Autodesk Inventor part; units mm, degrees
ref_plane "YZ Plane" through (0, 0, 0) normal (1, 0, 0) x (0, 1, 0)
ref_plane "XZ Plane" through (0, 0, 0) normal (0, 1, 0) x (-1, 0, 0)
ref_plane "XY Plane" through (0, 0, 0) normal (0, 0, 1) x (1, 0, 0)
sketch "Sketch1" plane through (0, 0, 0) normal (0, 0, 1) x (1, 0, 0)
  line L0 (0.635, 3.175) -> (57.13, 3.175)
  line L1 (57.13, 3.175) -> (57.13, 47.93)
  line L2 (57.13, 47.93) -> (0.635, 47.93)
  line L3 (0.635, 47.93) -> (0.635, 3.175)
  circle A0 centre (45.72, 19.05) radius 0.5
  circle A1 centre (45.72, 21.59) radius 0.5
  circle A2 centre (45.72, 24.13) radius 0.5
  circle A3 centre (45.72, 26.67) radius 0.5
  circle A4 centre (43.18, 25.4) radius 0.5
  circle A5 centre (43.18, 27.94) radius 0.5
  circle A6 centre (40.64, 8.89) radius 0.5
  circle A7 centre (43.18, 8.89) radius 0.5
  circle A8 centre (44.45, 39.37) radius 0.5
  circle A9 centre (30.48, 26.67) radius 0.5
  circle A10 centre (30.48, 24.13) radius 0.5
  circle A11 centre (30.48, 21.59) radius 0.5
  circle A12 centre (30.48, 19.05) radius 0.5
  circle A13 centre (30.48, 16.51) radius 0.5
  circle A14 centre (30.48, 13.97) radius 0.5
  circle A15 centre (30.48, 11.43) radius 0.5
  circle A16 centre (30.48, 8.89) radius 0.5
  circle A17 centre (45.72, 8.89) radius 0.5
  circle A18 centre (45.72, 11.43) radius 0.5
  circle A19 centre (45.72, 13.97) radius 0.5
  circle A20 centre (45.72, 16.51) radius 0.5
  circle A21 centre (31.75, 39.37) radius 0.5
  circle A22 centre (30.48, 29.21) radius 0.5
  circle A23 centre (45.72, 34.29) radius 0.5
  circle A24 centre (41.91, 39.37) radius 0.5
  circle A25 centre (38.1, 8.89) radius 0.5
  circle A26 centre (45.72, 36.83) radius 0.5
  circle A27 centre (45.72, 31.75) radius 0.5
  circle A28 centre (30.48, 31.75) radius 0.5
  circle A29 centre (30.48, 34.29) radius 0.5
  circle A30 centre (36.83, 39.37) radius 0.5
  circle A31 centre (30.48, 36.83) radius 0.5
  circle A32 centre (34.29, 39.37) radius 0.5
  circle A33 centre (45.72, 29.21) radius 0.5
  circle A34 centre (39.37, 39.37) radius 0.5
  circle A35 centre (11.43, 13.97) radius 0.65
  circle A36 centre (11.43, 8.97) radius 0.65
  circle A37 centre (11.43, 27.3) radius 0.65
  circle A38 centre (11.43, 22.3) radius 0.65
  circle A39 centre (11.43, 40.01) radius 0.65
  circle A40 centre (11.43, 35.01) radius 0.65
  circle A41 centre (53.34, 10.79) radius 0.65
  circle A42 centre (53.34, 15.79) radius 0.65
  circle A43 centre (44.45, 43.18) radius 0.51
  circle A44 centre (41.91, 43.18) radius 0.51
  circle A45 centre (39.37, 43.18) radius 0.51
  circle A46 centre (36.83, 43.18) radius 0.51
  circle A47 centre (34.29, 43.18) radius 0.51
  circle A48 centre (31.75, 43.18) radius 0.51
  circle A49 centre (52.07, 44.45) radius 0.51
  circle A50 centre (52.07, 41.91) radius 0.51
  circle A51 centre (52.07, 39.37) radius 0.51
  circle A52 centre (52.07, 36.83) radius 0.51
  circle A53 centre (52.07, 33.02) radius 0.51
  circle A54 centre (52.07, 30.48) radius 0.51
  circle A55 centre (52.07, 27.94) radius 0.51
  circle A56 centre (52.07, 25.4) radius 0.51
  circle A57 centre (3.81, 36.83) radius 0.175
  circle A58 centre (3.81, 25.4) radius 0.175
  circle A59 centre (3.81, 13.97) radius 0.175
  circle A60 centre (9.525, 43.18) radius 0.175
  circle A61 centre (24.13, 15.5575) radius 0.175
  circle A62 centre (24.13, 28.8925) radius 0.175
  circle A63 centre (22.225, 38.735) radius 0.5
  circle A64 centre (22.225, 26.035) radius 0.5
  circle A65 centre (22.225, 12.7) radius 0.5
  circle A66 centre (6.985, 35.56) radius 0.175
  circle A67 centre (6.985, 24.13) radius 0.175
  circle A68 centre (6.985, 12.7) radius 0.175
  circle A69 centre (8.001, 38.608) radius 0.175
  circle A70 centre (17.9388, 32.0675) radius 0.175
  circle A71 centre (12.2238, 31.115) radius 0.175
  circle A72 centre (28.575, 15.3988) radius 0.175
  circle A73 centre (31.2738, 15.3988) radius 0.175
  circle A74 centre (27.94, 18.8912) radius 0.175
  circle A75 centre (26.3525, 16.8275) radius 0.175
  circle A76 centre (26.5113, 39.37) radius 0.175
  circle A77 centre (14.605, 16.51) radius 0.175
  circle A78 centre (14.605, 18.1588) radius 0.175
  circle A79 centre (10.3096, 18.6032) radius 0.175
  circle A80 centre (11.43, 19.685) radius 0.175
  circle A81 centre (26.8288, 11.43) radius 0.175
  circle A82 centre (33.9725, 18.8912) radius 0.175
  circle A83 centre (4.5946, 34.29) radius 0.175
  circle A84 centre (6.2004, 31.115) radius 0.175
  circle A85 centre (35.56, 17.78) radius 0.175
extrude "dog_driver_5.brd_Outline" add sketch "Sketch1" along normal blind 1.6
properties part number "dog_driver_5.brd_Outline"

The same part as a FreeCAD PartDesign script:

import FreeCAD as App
import Part
import Sketcher

doc = App.newDocument("Part")
body = doc.addObject("PartDesign::Body", "Body")

sketch1 = body.newObject("Sketcher::SketchObject", "Sketch")
sketch1.AttachmentSupport = (doc.getObject("XY_Plane"), [""])
sketch1.MapMode = "FlatFace"
sketch1.addGeometry(Part.LineSegment(App.Vector(0.635, 47.93, 0), App.Vector(0.635, 3.175, 0)), False)
sketch1.addGeometry(Part.LineSegment(App.Vector(0.635, 3.175, 0), App.Vector(57.13, 3.175, 0)), False)
sketch1.addGeometry(Part.LineSegment(App.Vector(57.13, 3.175, 0), App.Vector(57.13, 47.93, 0)), False)
sketch1.addGeometry(Part.LineSegment(App.Vector(57.13, 47.93, 0), App.Vector(0.635, 47.93, 0)), False)
sketch1.addGeometry(Part.Circle(App.Vector(3.81, 13.97, 0), App.Vector(0, 0, 1), 0.175), False)
sketch1.addGeometry(Part.Circle(App.Vector(6.985, 12.7, 0), App.Vector(0, 0, 1), 0.175), False)
sketch1.addGeometry(Part.Circle(App.Vector(11.43, 8.97, 0), App.Vector(0, 0, 1), 0.65), False)
sketch1.addGeometry(Part.Circle(App.Vector(11.43, 13.97, 0), App.Vector(0, 0, 1), 0.65), False)
sketch1.addGeometry(Part.Circle(App.Vector(26.8288, 11.43, 0), App.Vector(0, 0, 1), 0.175), False)
sketch1.addGeometry(Part.Circle(App.Vector(22.225, 12.7, 0), App.Vector(0, 0, 1), 0.5), False)
sketch1.addGeometry(Part.Circle(App.Vector(14.605, 16.51, 0), App.Vector(0, 0, 1), 0.175), False)
sketch1.addGeometry(Part.Circle(App.Vector(10.3096, 18.6032, 0), App.Vector(0, 0, 1), 0.175), False)
sketch1.addGeometry(Part.Circle(App.Vector(14.605, 18.1588, 0), App.Vector(0, 0, 1), 0.175), False)
sketch1.addGeometry(Part.Circle(App.Vector(11.43, 19.685, 0), App.Vector(0, 0, 1), 0.175), False)
sketch1.addGeometry(Part.Circle(App.Vector(3.81, 25.4, 0), App.Vector(0, 0, 1), 0.175), False)
sketch1.addGeometry(Part.Circle(App.Vector(6.985, 24.13, 0), App.Vector(0, 0, 1), 0.175), False)
sketch1.addGeometry(Part.Circle(App.Vector(11.43, 22.3, 0), App.Vector(0, 0, 1), 0.65), False)
sketch1.addGeometry(Part.Circle(App.Vector(24.13, 15.5575, 0), App.Vector(0, 0, 1), 0.175), False)
sketch1.addGeometry(Part.Circle(App.Vector(28.575, 15.3988, 0), App.Vector(0, 0, 1), 0.175), False)
sketch1.addGeometry(Part.Circle(App.Vector(26.3525, 16.8275, 0), App.Vector(0, 0, 1), 0.175), False)
sketch1.addGeometry(Part.Circle(App.Vector(27.94, 18.8912, 0), App.Vector(0, 0, 1), 0.175), False)
sketch1.addGeometry(Part.Circle(App.Vector(30.48, 8.89, 0), App.Vector(0, 0, 1), 0.5), False)
sketch1.addGeometry(Part.Circle(App.Vector(30.48, 11.43, 0), App.Vector(0, 0, 1), 0.5), False)
sketch1.addGeometry(Part.Circle(App.Vector(30.48, 13.97, 0), App.Vector(0, 0, 1), 0.5), False)
sketch1.addGeometry(Part.Circle(App.Vector(38.1, 8.89, 0), App.Vector(0, 0, 1), 0.5), False)
sketch1.addGeometry(Part.Circle(App.Vector(40.64, 8.89, 0), App.Vector(0, 0, 1), 0.5), False)
sketch1.addGeometry(Part.Circle(App.Vector(43.18, 8.89, 0), App.Vector(0, 0, 1), 0.5), False)
sketch1.addGeometry(Part.Circle(App.Vector(45.72, 8.89, 0), App.Vector(0, 0, 1), 0.5), False)
sketch1.addGeometry(Part.Circle(App.Vector(45.72, 11.43, 0), App.Vector(0, 0, 1), 0.5), False)
sketch1.addGeometry(Part.Circle(App.Vector(45.72, 13.97, 0), App.Vector(0, 0, 1), 0.5), False)
sketch1.addGeometry(Part.Circle(App.Vector(53.34, 10.79, 0), App.Vector(0, 0, 1), 0.65), False)
sketch1.addGeometry(Part.Circle(App.Vector(31.2738, 15.3988, 0), App.Vector(0, 0, 1), 0.175), False)
sketch1.addGeometry(Part.Circle(App.Vector(30.48, 16.51, 0), App.Vector(0, 0, 1), 0.5), False)
sketch1.addGeometry(Part.Circle(App.Vector(30.48, 19.05, 0), App.Vector(0, 0, 1), 0.5), False)
sketch1.addGeometry(Part.Circle(App.Vector(35.56, 17.78, 0), App.Vector(0, 0, 1), 0.175), False)
sketch1.addGeometry(Part.Circle(App.Vector(33.9725, 18.8912, 0), App.Vector(0, 0, 1), 0.175), False)
sketch1.addGeometry(Part.Circle(App.Vector(30.48, 21.59, 0), App.Vector(0, 0, 1), 0.5), False)
sketch1.addGeometry(Part.Circle(App.Vector(30.48, 24.13, 0), App.Vector(0, 0, 1), 0.5), False)
sketch1.addGeometry(Part.Circle(App.Vector(45.72, 16.51, 0), App.Vector(0, 0, 1), 0.5), False)
sketch1.addGeometry(Part.Circle(App.Vector(45.72, 19.05, 0), App.Vector(0, 0, 1), 0.5), False)
sketch1.addGeometry(Part.Circle(App.Vector(53.34, 15.79, 0), App.Vector(0, 0, 1), 0.65), False)
sketch1.addGeometry(Part.Circle(App.Vector(45.72, 21.59, 0), App.Vector(0, 0, 1), 0.5), False)
sketch1.addGeometry(Part.Circle(App.Vector(45.72, 24.13, 0), App.Vector(0, 0, 1), 0.5), False)
sketch1.addGeometry(Part.Circle(App.Vector(43.18, 25.4, 0), App.Vector(0, 0, 1), 0.5), False)
sketch1.addGeometry(Part.Circle(App.Vector(52.07, 25.4, 0), App.Vector(0, 0, 1), 0.51), False)
sketch1.addGeometry(Part.Circle(App.Vector(6.2004, 31.115, 0), App.Vector(0, 0, 1), 0.175), False)
sketch1.addGeometry(Part.Circle(App.Vector(11.43, 27.3, 0), App.Vector(0, 0, 1), 0.65), False)
sketch1.addGeometry(Part.Circle(App.Vector(12.2238, 31.115, 0), App.Vector(0, 0, 1), 0.175), False)
sketch1.addGeometry(Part.Circle(App.Vector(4.5946, 34.29, 0), App.Vector(0, 0, 1), 0.175), False)
sketch1.addGeometry(Part.Circle(App.Vector(6.985, 35.56, 0), App.Vector(0, 0, 1), 0.175), False)
sketch1.addGeometry(Part.Circle(App.Vector(11.43, 35.01, 0), App.Vector(0, 0, 1), 0.65), False)
sketch1.addGeometry(Part.Circle(App.Vector(22.225, 26.035, 0), App.Vector(0, 0, 1), 0.5), False)
sketch1.addGeometry(Part.Circle(App.Vector(24.13, 28.8925, 0), App.Vector(0, 0, 1), 0.175), False)
sketch1.addGeometry(Part.Circle(App.Vector(17.9388, 32.0675, 0), App.Vector(0, 0, 1), 0.175), False)
sketch1.addGeometry(Part.Circle(App.Vector(3.81, 36.83, 0), App.Vector(0, 0, 1), 0.175), False)
sketch1.addGeometry(Part.Circle(App.Vector(8.001, 38.608, 0), App.Vector(0, 0, 1), 0.175), False)
sketch1.addGeometry(Part.Circle(App.Vector(11.43, 40.01, 0), App.Vector(0, 0, 1), 0.65), False)
sketch1.addGeometry(Part.Circle(App.Vector(9.525, 43.18, 0), App.Vector(0, 0, 1), 0.175), False)
sketch1.addGeometry(Part.Circle(App.Vector(22.225, 38.735, 0), App.Vector(0, 0, 1), 0.5), False)
sketch1.addGeometry(Part.Circle(App.Vector(26.5113, 39.37, 0), App.Vector(0, 0, 1), 0.175), False)
sketch1.addGeometry(Part.Circle(App.Vector(30.48, 26.67, 0), App.Vector(0, 0, 1), 0.5), False)
sketch1.addGeometry(Part.Circle(App.Vector(30.48, 29.21, 0), App.Vector(0, 0, 1), 0.5), False)
sketch1.addGeometry(Part.Circle(App.Vector(30.48, 31.75, 0), App.Vector(0, 0, 1), 0.5), False)
sketch1.addGeometry(Part.Circle(App.Vector(30.48, 34.29, 0), App.Vector(0, 0, 1), 0.5), False)
sketch1.addGeometry(Part.Circle(App.Vector(45.72, 26.67, 0), App.Vector(0, 0, 1), 0.5), False)
sketch1.addGeometry(Part.Circle(App.Vector(43.18, 27.94, 0), App.Vector(0, 0, 1), 0.5), False)
sketch1.addGeometry(Part.Circle(App.Vector(45.72, 29.21, 0), App.Vector(0, 0, 1), 0.5), False)
sketch1.addGeometry(Part.Circle(App.Vector(52.07, 27.94, 0), App.Vector(0, 0, 1), 0.51), False)
sketch1.addGeometry(Part.Circle(App.Vector(52.07, 30.48, 0), App.Vector(0, 0, 1), 0.51), False)
sketch1.addGeometry(Part.Circle(App.Vector(45.72, 31.75, 0), App.Vector(0, 0, 1), 0.5), False)
sketch1.addGeometry(Part.Circle(App.Vector(45.72, 34.29, 0), App.Vector(0, 0, 1), 0.5), False)
sketch1.addGeometry(Part.Circle(App.Vector(52.07, 33.02, 0), App.Vector(0, 0, 1), 0.51), False)
sketch1.addGeometry(Part.Circle(App.Vector(30.48, 36.83, 0), App.Vector(0, 0, 1), 0.5), False)
sketch1.addGeometry(Part.Circle(App.Vector(31.75, 39.37, 0), App.Vector(0, 0, 1), 0.5), False)
sketch1.addGeometry(Part.Circle(App.Vector(34.29, 39.37, 0), App.Vector(0, 0, 1), 0.5), False)
sketch1.addGeometry(Part.Circle(App.Vector(36.83, 39.37, 0), App.Vector(0, 0, 1), 0.5), False)
sketch1.addGeometry(Part.Circle(App.Vector(39.37, 39.37, 0), App.Vector(0, 0, 1), 0.5), False)
sketch1.addGeometry(Part.Circle(App.Vector(41.91, 39.37, 0), App.Vector(0, 0, 1), 0.5), False)
sketch1.addGeometry(Part.Circle(App.Vector(31.75, 43.18, 0), App.Vector(0, 0, 1), 0.51), False)
sketch1.addGeometry(Part.Circle(App.Vector(34.29, 43.18, 0), App.Vector(0, 0, 1), 0.51), False)
sketch1.addGeometry(Part.Circle(App.Vector(36.83, 43.18, 0), App.Vector(0, 0, 1), 0.51), False)
sketch1.addGeometry(Part.Circle(App.Vector(39.37, 43.18, 0), App.Vector(0, 0, 1), 0.51), False)
sketch1.addGeometry(Part.Circle(App.Vector(41.91, 43.18, 0), App.Vector(0, 0, 1), 0.51), False)
sketch1.addGeometry(Part.Circle(App.Vector(45.72, 36.83, 0), App.Vector(0, 0, 1), 0.5), False)
sketch1.addGeometry(Part.Circle(App.Vector(44.45, 39.37, 0), App.Vector(0, 0, 1), 0.5), False)
sketch1.addGeometry(Part.Circle(App.Vector(52.07, 36.83, 0), App.Vector(0, 0, 1), 0.51), False)
sketch1.addGeometry(Part.Circle(App.Vector(52.07, 39.37, 0), App.Vector(0, 0, 1), 0.51), False)
sketch1.addGeometry(Part.Circle(App.Vector(52.07, 41.91, 0), App.Vector(0, 0, 1), 0.51), False)
sketch1.addGeometry(Part.Circle(App.Vector(44.45, 43.18, 0), App.Vector(0, 0, 1), 0.51), False)
sketch1.addGeometry(Part.Circle(App.Vector(52.07, 44.45, 0), App.Vector(0, 0, 1), 0.51), False)
sketch1.addConstraint(Sketcher.Constraint("Coincident", 0, 2, 1, 1))
sketch1.addConstraint(Sketcher.Constraint("Coincident", 1, 2, 2, 1))
sketch1.addConstraint(Sketcher.Constraint("Coincident", 2, 2, 3, 1))
sketch1.addConstraint(Sketcher.Constraint("Coincident", 3, 2, 0, 1))
sketch1.addConstraint(Sketcher.Constraint("Vertical", 0))
sketch1.addConstraint(Sketcher.Constraint("Horizontal", 1))
sketch1.addConstraint(Sketcher.Constraint("Vertical", 2))
sketch1.addConstraint(Sketcher.Constraint("Horizontal", 3))
sketch1.addConstraint(Sketcher.Constraint("Equal", 4, 5))
sketch1.addConstraint(Sketcher.Constraint("Equal", 6, 7))
sketch1.addConstraint(Sketcher.Constraint("Equal", 5, 8))
sketch1.addConstraint(Sketcher.Constraint("Equal", 8, 10))
sketch1.addConstraint(Sketcher.Constraint("Equal", 10, 11))
sketch1.addConstraint(Sketcher.Constraint("Equal", 11, 12))
sketch1.addConstraint(Sketcher.Constraint("Equal", 12, 13))
sketch1.addConstraint(Sketcher.Constraint("Equal", 13, 14))
sketch1.addConstraint(Sketcher.Constraint("Equal", 14, 15))
sketch1.addConstraint(Sketcher.Constraint("Equal", 7, 16))
sketch1.addConstraint(Sketcher.Constraint("Equal", 15, 17))
sketch1.addConstraint(Sketcher.Constraint("Equal", 17, 18))
sketch1.addConstraint(Sketcher.Constraint("Equal", 18, 19))
sketch1.addConstraint(Sketcher.Constraint("Equal", 19, 20))
sketch1.addConstraint(Sketcher.Constraint("Equal", 9, 21))
sketch1.addConstraint(Sketcher.Constraint("Equal", 21, 22))
sketch1.addConstraint(Sketcher.Constraint("Equal", 22, 23))
sketch1.addConstraint(Sketcher.Constraint("Equal", 23, 24))
sketch1.addConstraint(Sketcher.Constraint("Equal", 24, 25))
sketch1.addConstraint(Sketcher.Constraint("Equal", 25, 26))
sketch1.addConstraint(Sketcher.Constraint("Equal", 26, 27))
sketch1.addConstraint(Sketcher.Constraint("Equal", 27, 28))
sketch1.addConstraint(Sketcher.Constraint("Equal", 28, 29))
sketch1.addConstraint(Sketcher.Constraint("Equal", 16, 30))
sketch1.addConstraint(Sketcher.Constraint("Equal", 20, 31))
sketch1.addConstraint(Sketcher.Constraint("Equal", 29, 32))
sketch1.addConstraint(Sketcher.Constraint("Equal", 32, 33))
sketch1.addConstraint(Sketcher.Constraint("Equal", 31, 34))
sketch1.addConstraint(Sketcher.Constraint("Equal", 34, 35))
sketch1.addConstraint(Sketcher.Constraint("Equal", 33, 36))
sketch1.addConstraint(Sketcher.Constraint("Equal", 36, 37))
sketch1.addConstraint(Sketcher.Constraint("Equal", 37, 38))
sketch1.addConstraint(Sketcher.Constraint("Equal", 38, 39))
sketch1.addConstraint(Sketcher.Constraint("Equal", 30, 40))
sketch1.addConstraint(Sketcher.Constraint("Equal", 39, 41))
sketch1.addConstraint(Sketcher.Constraint("Equal", 41, 42))
sketch1.addConstraint(Sketcher.Constraint("Equal", 42, 43))
sketch1.addConstraint(Sketcher.Constraint("Equal", 35, 45))
sketch1.addConstraint(Sketcher.Constraint("Equal", 40, 46))
sketch1.addConstraint(Sketcher.Constraint("Equal", 45, 47))
sketch1.addConstraint(Sketcher.Constraint("Equal", 47, 48))
sketch1.addConstraint(Sketcher.Constraint("Equal", 48, 49))
sketch1.addConstraint(Sketcher.Constraint("Equal", 46, 50))
sketch1.addConstraint(Sketcher.Constraint("Equal", 43, 51))
sketch1.addConstraint(Sketcher.Constraint("Equal", 49, 52))
sketch1.addConstraint(Sketcher.Constraint("Equal", 52, 53))
sketch1.addConstraint(Sketcher.Constraint("Equal", 53, 54))
sketch1.addConstraint(Sketcher.Constraint("Equal", 54, 55))
sketch1.addConstraint(Sketcher.Constraint("Equal", 50, 56))
sketch1.addConstraint(Sketcher.Constraint("Equal", 55, 57))
sketch1.addConstraint(Sketcher.Constraint("Equal", 51, 58))
sketch1.addConstraint(Sketcher.Constraint("Equal", 57, 59))
sketch1.addConstraint(Sketcher.Constraint("Equal", 58, 60))
sketch1.addConstraint(Sketcher.Constraint("Equal", 60, 61))
sketch1.addConstraint(Sketcher.Constraint("Equal", 61, 62))
sketch1.addConstraint(Sketcher.Constraint("Equal", 62, 63))
sketch1.addConstraint(Sketcher.Constraint("Equal", 63, 64))
sketch1.addConstraint(Sketcher.Constraint("Equal", 64, 65))
sketch1.addConstraint(Sketcher.Constraint("Equal", 65, 66))
sketch1.addConstraint(Sketcher.Constraint("Equal", 44, 67))
sketch1.addConstraint(Sketcher.Constraint("Equal", 67, 68))
sketch1.addConstraint(Sketcher.Constraint("Equal", 66, 69))
sketch1.addConstraint(Sketcher.Constraint("Equal", 69, 70))
sketch1.addConstraint(Sketcher.Constraint("Equal", 68, 71))
sketch1.addConstraint(Sketcher.Constraint("Equal", 70, 72))
sketch1.addConstraint(Sketcher.Constraint("Equal", 72, 73))
sketch1.addConstraint(Sketcher.Constraint("Equal", 73, 74))
sketch1.addConstraint(Sketcher.Constraint("Equal", 74, 75))
sketch1.addConstraint(Sketcher.Constraint("Equal", 75, 76))
sketch1.addConstraint(Sketcher.Constraint("Equal", 76, 77))
sketch1.addConstraint(Sketcher.Constraint("Equal", 71, 78))
sketch1.addConstraint(Sketcher.Constraint("Equal", 78, 79))
sketch1.addConstraint(Sketcher.Constraint("Equal", 79, 80))
sketch1.addConstraint(Sketcher.Constraint("Equal", 80, 81))
sketch1.addConstraint(Sketcher.Constraint("Equal", 81, 82))
sketch1.addConstraint(Sketcher.Constraint("Equal", 77, 83))
sketch1.addConstraint(Sketcher.Constraint("Equal", 83, 84))
sketch1.addConstraint(Sketcher.Constraint("Equal", 82, 85))
sketch1.addConstraint(Sketcher.Constraint("Equal", 85, 86))
sketch1.addConstraint(Sketcher.Constraint("Equal", 86, 87))
sketch1.addConstraint(Sketcher.Constraint("Equal", 87, 88))
sketch1.addConstraint(Sketcher.Constraint("Equal", 88, 89))
sketch1.addConstraint(Sketcher.Constraint("Horizontal", 4, 3, 7, 3))
sketch1.addConstraint(Sketcher.Constraint("Horizontal", 5, 3, 9, 3))
sketch1.addConstraint(Sketcher.Constraint("Horizontal", 8, 3, 22, 3))
sketch1.addConstraint(Sketcher.Constraint("Horizontal", 7, 3, 23, 3))
sketch1.addConstraint(Sketcher.Constraint("Horizontal", 21, 3, 24, 3))
sketch1.addConstraint(Sketcher.Constraint("Horizontal", 24, 3, 25, 3))
sketch1.addConstraint(Sketcher.Constraint("Horizontal", 25, 3, 26, 3))
sketch1.addConstraint(Sketcher.Constraint("Horizontal", 26, 3, 27, 3))
sketch1.addConstraint(Sketcher.Constraint("Horizontal", 22, 3, 28, 3))
sketch1.addConstraint(Sketcher.Constraint("Horizontal", 23, 3, 29, 3))
sketch1.addConstraint(Sketcher.Constraint("Horizontal", 18, 3, 31, 3))
sketch1.addConstraint(Sketcher.Constraint("Horizontal", 10, 3, 32, 3))
sketch1.addConstraint(Sketcher.Constraint("Horizontal", 20, 3, 35, 3))
sketch1.addConstraint(Sketcher.Constraint("Horizontal", 15, 3, 37, 3))
sketch1.addConstraint(Sketcher.Constraint("Horizontal", 32, 3, 38, 3))
sketch1.addConstraint(Sketcher.Constraint("Horizontal", 33, 3, 39, 3))
sketch1.addConstraint(Sketcher.Constraint("Horizontal", 36, 3, 41, 3))
sketch1.addConstraint(Sketcher.Constraint("Horizontal", 37, 3, 42, 3))
sketch1.addConstraint(Sketcher.Constraint("Horizontal", 14, 3, 43, 3))
sketch1.addConstraint(Sketcher.Constraint("Horizontal", 43, 3, 44, 3))
sketch1.addConstraint(Sketcher.Constraint("Horizontal", 45, 3, 47, 3))
sketch1.addConstraint(Sketcher.Constraint("Horizontal", 48, 3, 63, 3))
sketch1.addConstraint(Sketcher.Constraint("Horizontal", 60, 3, 64, 3))
sketch1.addConstraint(Sketcher.Constraint("Horizontal", 61, 3, 66, 3))
sketch1.addConstraint(Sketcher.Constraint("Horizontal", 65, 3, 67, 3))
sketch1.addConstraint(Sketcher.Constraint("Horizontal", 62, 3, 69, 3))
sketch1.addConstraint(Sketcher.Constraint("Horizontal", 63, 3, 70, 3))
sketch1.addConstraint(Sketcher.Constraint("Horizontal", 54, 3, 72, 3))
sketch1.addConstraint(Sketcher.Constraint("Horizontal", 59, 3, 73, 3))
sketch1.addConstraint(Sketcher.Constraint("Horizontal", 73, 3, 74, 3))
sketch1.addConstraint(Sketcher.Constraint("Horizontal", 74, 3, 75, 3))
sketch1.addConstraint(Sketcher.Constraint("Horizontal", 75, 3, 76, 3))
sketch1.addConstraint(Sketcher.Constraint("Horizontal", 76, 3, 77, 3))
sketch1.addConstraint(Sketcher.Constraint("Horizontal", 57, 3, 78, 3))
sketch1.addConstraint(Sketcher.Constraint("Horizontal", 78, 3, 79, 3))
sketch1.addConstraint(Sketcher.Constraint("Horizontal", 79, 3, 80, 3))
sketch1.addConstraint(Sketcher.Constraint("Horizontal", 80, 3, 81, 3))
sketch1.addConstraint(Sketcher.Constraint("Horizontal", 81, 3, 82, 3))
sketch1.addConstraint(Sketcher.Constraint("Horizontal", 72, 3, 83, 3))
sketch1.addConstraint(Sketcher.Constraint("Horizontal", 77, 3, 84, 3))
sketch1.addConstraint(Sketcher.Constraint("Horizontal", 83, 3, 85, 3))
sketch1.addConstraint(Sketcher.Constraint("Horizontal", 84, 3, 86, 3))
sketch1.addConstraint(Sketcher.Constraint("Horizontal", 82, 3, 88, 3))
sketch1.addConstraint(Sketcher.Constraint("Vertical", 6, 3, 7, 3))
sketch1.addConstraint(Sketcher.Constraint("Vertical", 10, 3, 12, 3))
sketch1.addConstraint(Sketcher.Constraint("Vertical", 7, 3, 13, 3))
sketch1.addConstraint(Sketcher.Constraint("Vertical", 4, 3, 14, 3))
sketch1.addConstraint(Sketcher.Constraint("Vertical", 5, 3, 15, 3))
sketch1.addConstraint(Sketcher.Constraint("Vertical", 13, 3, 16, 3))
sketch1.addConstraint(Sketcher.Constraint("Vertical", 21, 3, 22, 3))
sketch1.addConstraint(Sketcher.Constraint("Vertical", 22, 3, 23, 3))
sketch1.addConstraint(Sketcher.Constraint("Vertical", 27, 3, 28, 3))
sketch1.addConstraint(Sketcher.Constraint("Vertical", 28, 3, 29, 3))
sketch1.addConstraint(Sketcher.Constraint("Vertical", 23, 3, 32, 3))
sketch1.addConstraint(Sketcher.Constraint("Vertical", 32, 3, 33, 3))
sketch1.addConstraint(Sketcher.Constraint("Vertical", 33, 3, 36, 3))
sketch1.addConstraint(Sketcher.Constraint("Vertical", 36, 3, 37, 3))
sketch1.addConstraint(Sketcher.Constraint("Vertical", 29, 3, 38, 3))
sketch1.addConstraint(Sketcher.Constraint("Vertical", 38, 3, 39, 3))
sketch1.addConstraint(Sketcher.Constraint("Vertical", 30, 3, 40, 3))
sketch1.addConstraint(Sketcher.Constraint("Vertical", 39, 3, 41, 3))
sketch1.addConstraint(Sketcher.Constraint("Vertical", 41, 3, 42, 3))
sketch1.addConstraint(Sketcher.Constraint("Vertical", 26, 3, 43, 3))
sketch1.addConstraint(Sketcher.Constraint("Vertical", 16, 3, 46, 3))
sketch1.addConstraint(Sketcher.Constraint("Vertical", 15, 3, 49, 3))
sketch1.addConstraint(Sketcher.Constraint("Vertical", 46, 3, 50, 3))
sketch1.addConstraint(Sketcher.Constraint("Vertical", 9, 3, 51, 3))
sketch1.addConstraint(Sketcher.Constraint("Vertical", 17, 3, 52, 3))
sketch1.addConstraint(Sketcher.Constraint("Vertical", 14, 3, 54, 3))
sketch1.addConstraint(Sketcher.Constraint("Vertical", 50, 3, 56, 3))
sketch1.addConstraint(Sketcher.Constraint("Vertical", 51, 3, 58, 3))
sketch1.addConstraint(Sketcher.Constraint("Vertical", 37, 3, 60, 3))
sketch1.addConstraint(Sketcher.Constraint("Vertical", 60, 3, 61, 3))
sketch1.addConstraint(Sketcher.Constraint("Vertical", 61, 3, 62, 3))
sketch1.addConstraint(Sketcher.Constraint("Vertical", 62, 3, 63, 3))
sketch1.addConstraint(Sketcher.Constraint("Vertical", 42, 3, 64, 3))
sketch1.addConstraint(Sketcher.Constraint("Vertical", 43, 3, 65, 3))
sketch1.addConstraint(Sketcher.Constraint("Vertical", 64, 3, 66, 3))
sketch1.addConstraint(Sketcher.Constraint("Vertical", 44, 3, 67, 3))
sketch1.addConstraint(Sketcher.Constraint("Vertical", 67, 3, 68, 3))
sketch1.addConstraint(Sketcher.Constraint("Vertical", 66, 3, 69, 3))
sketch1.addConstraint(Sketcher.Constraint("Vertical", 69, 3, 70, 3))
sketch1.addConstraint(Sketcher.Constraint("Vertical", 68, 3, 71, 3))
sketch1.addConstraint(Sketcher.Constraint("Vertical", 63, 3, 72, 3))
sketch1.addConstraint(Sketcher.Constraint("Vertical", 73, 3, 78, 3))
sketch1.addConstraint(Sketcher.Constraint("Vertical", 74, 3, 79, 3))
sketch1.addConstraint(Sketcher.Constraint("Vertical", 75, 3, 80, 3))
sketch1.addConstraint(Sketcher.Constraint("Vertical", 76, 3, 81, 3))
sketch1.addConstraint(Sketcher.Constraint("Vertical", 77, 3, 82, 3))
sketch1.addConstraint(Sketcher.Constraint("Vertical", 70, 3, 83, 3))
sketch1.addConstraint(Sketcher.Constraint("Vertical", 71, 3, 85, 3))
sketch1.addConstraint(Sketcher.Constraint("Vertical", 85, 3, 86, 3))
sketch1.addConstraint(Sketcher.Constraint("Vertical", 86, 3, 87, 3))
sketch1.addConstraint(Sketcher.Constraint("Vertical", 84, 3, 88, 3))
sketch1.addConstraint(Sketcher.Constraint("Vertical", 87, 3, 89, 3))
sketch1.addConstraint(Sketcher.Constraint("Diameter", 9, 1.0))
sketch1.addConstraint(Sketcher.Constraint("Diameter", 6, 1.3))
sketch1.addConstraint(Sketcher.Constraint("Diameter", 4, 0.35))
sketch1.addConstraint(Sketcher.Constraint("Diameter", 44, 1.02))
sketch1.addConstraint(Sketcher.Constraint("DistanceY", -1, 1, 5, 3, 12.7))
sketch1.addConstraint(Sketcher.Constraint("DistanceY", -1, 1, 14, 3, 25.4))
sketch1.addConstraint(Sketcher.Constraint("DistanceY", -1, 1, 16, 3, 22.3))
sketch1.addConstraint(Sketcher.Constraint("DistanceX", -1, 1, 24, 3, 38.1))
sketch1.addConstraint(Sketcher.Constraint("DistanceY", -1, 1, 46, 3, 27.3))
sketch1.addConstraint(Sketcher.Constraint("DistanceX", 1, 1, 1, 2, 56.495))
sketch1.addConstraint(Sketcher.Constraint("DistanceY", 0, 2, 0, 1, 44.755))
sketch1.addConstraint(Sketcher.Constraint("DistanceX", -1, 1, 4, 3, 3.81))
sketch1.addConstraint(Sketcher.Constraint("DistanceY", -1, 1, 4, 3, 13.97))
sketch1.addConstraint(Sketcher.Constraint("DistanceX", -1, 1, 6, 3, 11.43))
sketch1.addConstraint(Sketcher.Constraint("DistanceY", -1, 1, 6, 3, 8.97))
sketch1.addConstraint(Sketcher.Constraint("DistanceY", -1, 1, 8, 3, 11.43))
sketch1.addConstraint(Sketcher.Constraint("DistanceY", -1, 1, 10, 3, 16.51))
sketch1.addConstraint(Sketcher.Constraint("DistanceY", -1, 1, 15, 3, 24.13))
sketch1.addConstraint(Sketcher.Constraint("DistanceX", -1, 1, 17, 3, 24.13))
sketch1.addConstraint(Sketcher.Constraint("DistanceX", -1, 1, 20, 3, 27.94))
sketch1.addConstraint(Sketcher.Constraint("DistanceX", -1, 1, 21, 3, 30.48))
sketch1.addConstraint(Sketcher.Constraint("DistanceY", -1, 1, 21, 3, 8.89))
sketch1.addConstraint(Sketcher.Constraint("DistanceX", -1, 1, 25, 3, 40.64))
sketch1.addConstraint(Sketcher.Constraint("DistanceX", -1, 1, 26, 3, 43.18))
sketch1.addConstraint(Sketcher.Constraint("DistanceX", -1, 1, 27, 3, 45.72))
sketch1.addConstraint(Sketcher.Constraint("DistanceX", -1, 1, 30, 3, 53.34))
sketch1.addConstraint(Sketcher.Constraint("DistanceY", -1, 1, 30, 3, 10.79))
sketch1.addConstraint(Sketcher.Constraint("DistanceY", -1, 1, 33, 3, 19.05))
sketch1.addConstraint(Sketcher.Constraint("DistanceX", -1, 1, 34, 3, 35.56))
sketch1.addConstraint(Sketcher.Constraint("DistanceY", -1, 1, 34, 3, 17.78))
sketch1.addConstraint(Sketcher.Constraint("DistanceY", -1, 1, 36, 3, 21.59))
sketch1.addConstraint(Sketcher.Constraint("DistanceY", -1, 1, 40, 3, 15.79))
sketch1.addConstraint(Sketcher.Constraint("DistanceX", -1, 1, 44, 3, 52.07))
sketch1.addConstraint(Sketcher.Constraint("DistanceY", -1, 1, 48, 3, 34.29))
sketch1.addConstraint(Sketcher.Constraint("DistanceY", -1, 1, 49, 3, 35.56))
sketch1.addConstraint(Sketcher.Constraint("DistanceY", -1, 1, 50, 3, 35.01))
sketch1.addConstraint(Sketcher.Constraint("DistanceY", -1, 1, 54, 3, 36.83))
sketch1.addConstraint(Sketcher.Constraint("DistanceY", -1, 1, 56, 3, 40.01))
sketch1.addConstraint(Sketcher.Constraint("DistanceY", -1, 1, 57, 3, 43.18))
sketch1.addConstraint(Sketcher.Constraint("DistanceY", -1, 1, 59, 3, 39.37))
sketch1.addConstraint(Sketcher.Constraint("DistanceY", -1, 1, 60, 3, 26.67))
sketch1.addConstraint(Sketcher.Constraint("DistanceY", -1, 1, 61, 3, 29.21))
sketch1.addConstraint(Sketcher.Constraint("DistanceY", -1, 1, 62, 3, 31.75))
sketch1.addConstraint(Sketcher.Constraint("DistanceY", -1, 1, 65, 3, 27.94))
sketch1.addConstraint(Sketcher.Constraint("DistanceY", -1, 1, 68, 3, 30.48))
sketch1.addConstraint(Sketcher.Constraint("DistanceY", -1, 1, 71, 3, 33.02))
sketch1.addConstraint(Sketcher.Constraint("DistanceX", -1, 1, 73, 3, 31.75))
sketch1.addConstraint(Sketcher.Constraint("DistanceX", -1, 1, 74, 3, 34.29))
sketch1.addConstraint(Sketcher.Constraint("DistanceX", -1, 1, 75, 3, 36.83))
sketch1.addConstraint(Sketcher.Constraint("DistanceX", -1, 1, 76, 3, 39.37))
sketch1.addConstraint(Sketcher.Constraint("DistanceX", -1, 1, 77, 3, 41.91))
sketch1.addConstraint(Sketcher.Constraint("DistanceX", -1, 1, 84, 3, 44.45))
sketch1.addConstraint(Sketcher.Constraint("DistanceY", -1, 1, 87, 3, 41.91))
sketch1.addConstraint(Sketcher.Constraint("DistanceY", -1, 1, 89, 3, 44.45))
sketch1.addConstraint(Sketcher.Constraint("DistanceX", -1, 1, 1, 2, 57.13))
sketch1.addConstraint(Sketcher.Constraint("DistanceY", -1, 1, 2, 2, 47.93))
sketch1.addConstraint(Sketcher.Constraint("DistanceX", -1, 1, 5, 3, 6.985))
sketch1.addConstraint(Sketcher.Constraint("DistanceX", -1, 1, 9, 3, 22.225))
sketch1.addConstraint(Sketcher.Constraint("DistanceX", -1, 1, 10, 3, 14.605))
sketch1.addConstraint(Sketcher.Constraint("DistanceY", -1, 1, 13, 3, 19.685))
sketch1.addConstraint(Sketcher.Constraint("DistanceX", -1, 1, 18, 3, 28.575))
sketch1.addConstraint(Sketcher.Constraint("DistanceY", -1, 1, 45, 3, 31.115))
sketch1.addConstraint(Sketcher.Constraint("DistanceY", -1, 1, 51, 3, 26.035))
sketch1.addConstraint(Sketcher.Constraint("DistanceX", -1, 1, 55, 3, 8.001))
sketch1.addConstraint(Sketcher.Constraint("DistanceY", -1, 1, 55, 3, 38.608))
sketch1.addConstraint(Sketcher.Constraint("DistanceX", -1, 1, 57, 3, 9.525))
sketch1.addConstraint(Sketcher.Constraint("DistanceY", -1, 1, 58, 3, 38.735))
sketch1.addConstraint(Sketcher.Constraint("DistanceX", -1, 1, 8, 3, 26.8288))
sketch1.addConstraint(Sketcher.Constraint("DistanceX", -1, 1, 11, 3, 10.3096))
sketch1.addConstraint(Sketcher.Constraint("DistanceY", -1, 1, 11, 3, 18.6032))
sketch1.addConstraint(Sketcher.Constraint("DistanceY", -1, 1, 12, 3, 18.1588))
sketch1.addConstraint(Sketcher.Constraint("DistanceY", -1, 1, 17, 3, 15.5575))
sketch1.addConstraint(Sketcher.Constraint("DistanceY", -1, 1, 18, 3, 15.3988))
sketch1.addConstraint(Sketcher.Constraint("DistanceX", -1, 1, 19, 3, 26.3525))
sketch1.addConstraint(Sketcher.Constraint("DistanceY", -1, 1, 19, 3, 16.8275))
sketch1.addConstraint(Sketcher.Constraint("DistanceY", -1, 1, 20, 3, 18.8912))
sketch1.addConstraint(Sketcher.Constraint("DistanceX", -1, 1, 31, 3, 31.2738))
sketch1.addConstraint(Sketcher.Constraint("DistanceX", -1, 1, 35, 3, 33.9725))
sketch1.addConstraint(Sketcher.Constraint("DistanceX", -1, 1, 45, 3, 6.2004))
sketch1.addConstraint(Sketcher.Constraint("DistanceX", -1, 1, 47, 3, 12.2238))
sketch1.addConstraint(Sketcher.Constraint("DistanceX", -1, 1, 48, 3, 4.5946))
sketch1.addConstraint(Sketcher.Constraint("DistanceY", -1, 1, 52, 3, 28.8925))
sketch1.addConstraint(Sketcher.Constraint("DistanceX", -1, 1, 53, 3, 17.9388))
sketch1.addConstraint(Sketcher.Constraint("DistanceY", -1, 1, 53, 3, 32.0675))
sketch1.addConstraint(Sketcher.Constraint("DistanceX", -1, 1, 59, 3, 26.5113))
pad1 = body.newObject("PartDesign::Pad", "Pad")
pad1.Profile = sketch1
pad1.Length = 1.6

doc.recompute()
